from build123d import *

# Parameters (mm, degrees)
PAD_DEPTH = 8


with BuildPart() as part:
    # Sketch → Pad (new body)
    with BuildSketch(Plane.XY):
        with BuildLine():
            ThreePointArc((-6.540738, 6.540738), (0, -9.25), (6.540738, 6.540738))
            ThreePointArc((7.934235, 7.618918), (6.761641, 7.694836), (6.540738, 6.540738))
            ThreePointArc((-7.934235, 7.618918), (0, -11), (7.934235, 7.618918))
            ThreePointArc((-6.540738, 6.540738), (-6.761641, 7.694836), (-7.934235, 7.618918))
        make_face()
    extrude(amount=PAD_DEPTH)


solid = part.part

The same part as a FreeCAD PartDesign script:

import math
import FreeCAD as App
import Part
import Sketcher

doc = App.newDocument("Part")
body = doc.addObject("PartDesign::Body", "Body")

sketch1 = body.newObject("Sketcher::SketchObject", "Sketch")
sketch1.AttachmentSupport = (doc.getObject("XY_Plane"), [""])
sketch1.MapMode = "FlatFace"
sketch1.addGeometry([
    Part.ArcOfCircle(Part.Circle(App.Vector(0, 0, 0), App.Vector(0, 0, 1), 9.3), math.radians(135), math.radians(405)),
    Part.ArcOfCircle(Part.Circle(App.Vector(-7.3, 7, 0), App.Vector(0, 0, 1), 0.9), math.radians(-31), math.radians(135)),
    Part.ArcOfCircle(Part.Circle(App.Vector(0, 0, 0), App.Vector(0, 0, 1), 11), math.radians(136), math.radians(404)),
    Part.ArcOfCircle(Part.Circle(App.Vector(7.3, 7, 0), App.Vector(0, 0, 1), 0.9), math.radians(45), math.radians(211)),
], False)
sketch1.addConstraint([
    Sketcher.Constraint("Coincident", 0, 1, 1, 1),
    Sketcher.Constraint("Coincident", 1, 2, 2, 1),
    Sketcher.Constraint("Coincident", 2, 2, 3, 1),
    Sketcher.Constraint("Coincident", 3, 2, 0, 2),
    Sketcher.Constraint("Coincident", 0, 3, -1, 1),
    Sketcher.Constraint("Coincident", 2, 3, -1, 1),
    Sketcher.Constraint("Equal", 1, 3),
    Sketcher.Constraint("Symmetric", 1, 3, 3, 3, -2),
    Sketcher.Constraint("Radius", 2, 11.0),
    Sketcher.Constraint("Radius", 0, 9.25),
    Sketcher.Constraint("Radius", 1, 0.88782),
    Sketcher.Constraint("DistanceX", 1, 2, 1, 3, 0.629301),
    Sketcher.Constraint("DistanceY", -1, 1, 2, 2, 7.618918),
])
pad1 = body.newObject("PartDesign::Pad", "Pad")
pad1.Profile = sketch1
pad1.Length = 8

doc.recompute()
